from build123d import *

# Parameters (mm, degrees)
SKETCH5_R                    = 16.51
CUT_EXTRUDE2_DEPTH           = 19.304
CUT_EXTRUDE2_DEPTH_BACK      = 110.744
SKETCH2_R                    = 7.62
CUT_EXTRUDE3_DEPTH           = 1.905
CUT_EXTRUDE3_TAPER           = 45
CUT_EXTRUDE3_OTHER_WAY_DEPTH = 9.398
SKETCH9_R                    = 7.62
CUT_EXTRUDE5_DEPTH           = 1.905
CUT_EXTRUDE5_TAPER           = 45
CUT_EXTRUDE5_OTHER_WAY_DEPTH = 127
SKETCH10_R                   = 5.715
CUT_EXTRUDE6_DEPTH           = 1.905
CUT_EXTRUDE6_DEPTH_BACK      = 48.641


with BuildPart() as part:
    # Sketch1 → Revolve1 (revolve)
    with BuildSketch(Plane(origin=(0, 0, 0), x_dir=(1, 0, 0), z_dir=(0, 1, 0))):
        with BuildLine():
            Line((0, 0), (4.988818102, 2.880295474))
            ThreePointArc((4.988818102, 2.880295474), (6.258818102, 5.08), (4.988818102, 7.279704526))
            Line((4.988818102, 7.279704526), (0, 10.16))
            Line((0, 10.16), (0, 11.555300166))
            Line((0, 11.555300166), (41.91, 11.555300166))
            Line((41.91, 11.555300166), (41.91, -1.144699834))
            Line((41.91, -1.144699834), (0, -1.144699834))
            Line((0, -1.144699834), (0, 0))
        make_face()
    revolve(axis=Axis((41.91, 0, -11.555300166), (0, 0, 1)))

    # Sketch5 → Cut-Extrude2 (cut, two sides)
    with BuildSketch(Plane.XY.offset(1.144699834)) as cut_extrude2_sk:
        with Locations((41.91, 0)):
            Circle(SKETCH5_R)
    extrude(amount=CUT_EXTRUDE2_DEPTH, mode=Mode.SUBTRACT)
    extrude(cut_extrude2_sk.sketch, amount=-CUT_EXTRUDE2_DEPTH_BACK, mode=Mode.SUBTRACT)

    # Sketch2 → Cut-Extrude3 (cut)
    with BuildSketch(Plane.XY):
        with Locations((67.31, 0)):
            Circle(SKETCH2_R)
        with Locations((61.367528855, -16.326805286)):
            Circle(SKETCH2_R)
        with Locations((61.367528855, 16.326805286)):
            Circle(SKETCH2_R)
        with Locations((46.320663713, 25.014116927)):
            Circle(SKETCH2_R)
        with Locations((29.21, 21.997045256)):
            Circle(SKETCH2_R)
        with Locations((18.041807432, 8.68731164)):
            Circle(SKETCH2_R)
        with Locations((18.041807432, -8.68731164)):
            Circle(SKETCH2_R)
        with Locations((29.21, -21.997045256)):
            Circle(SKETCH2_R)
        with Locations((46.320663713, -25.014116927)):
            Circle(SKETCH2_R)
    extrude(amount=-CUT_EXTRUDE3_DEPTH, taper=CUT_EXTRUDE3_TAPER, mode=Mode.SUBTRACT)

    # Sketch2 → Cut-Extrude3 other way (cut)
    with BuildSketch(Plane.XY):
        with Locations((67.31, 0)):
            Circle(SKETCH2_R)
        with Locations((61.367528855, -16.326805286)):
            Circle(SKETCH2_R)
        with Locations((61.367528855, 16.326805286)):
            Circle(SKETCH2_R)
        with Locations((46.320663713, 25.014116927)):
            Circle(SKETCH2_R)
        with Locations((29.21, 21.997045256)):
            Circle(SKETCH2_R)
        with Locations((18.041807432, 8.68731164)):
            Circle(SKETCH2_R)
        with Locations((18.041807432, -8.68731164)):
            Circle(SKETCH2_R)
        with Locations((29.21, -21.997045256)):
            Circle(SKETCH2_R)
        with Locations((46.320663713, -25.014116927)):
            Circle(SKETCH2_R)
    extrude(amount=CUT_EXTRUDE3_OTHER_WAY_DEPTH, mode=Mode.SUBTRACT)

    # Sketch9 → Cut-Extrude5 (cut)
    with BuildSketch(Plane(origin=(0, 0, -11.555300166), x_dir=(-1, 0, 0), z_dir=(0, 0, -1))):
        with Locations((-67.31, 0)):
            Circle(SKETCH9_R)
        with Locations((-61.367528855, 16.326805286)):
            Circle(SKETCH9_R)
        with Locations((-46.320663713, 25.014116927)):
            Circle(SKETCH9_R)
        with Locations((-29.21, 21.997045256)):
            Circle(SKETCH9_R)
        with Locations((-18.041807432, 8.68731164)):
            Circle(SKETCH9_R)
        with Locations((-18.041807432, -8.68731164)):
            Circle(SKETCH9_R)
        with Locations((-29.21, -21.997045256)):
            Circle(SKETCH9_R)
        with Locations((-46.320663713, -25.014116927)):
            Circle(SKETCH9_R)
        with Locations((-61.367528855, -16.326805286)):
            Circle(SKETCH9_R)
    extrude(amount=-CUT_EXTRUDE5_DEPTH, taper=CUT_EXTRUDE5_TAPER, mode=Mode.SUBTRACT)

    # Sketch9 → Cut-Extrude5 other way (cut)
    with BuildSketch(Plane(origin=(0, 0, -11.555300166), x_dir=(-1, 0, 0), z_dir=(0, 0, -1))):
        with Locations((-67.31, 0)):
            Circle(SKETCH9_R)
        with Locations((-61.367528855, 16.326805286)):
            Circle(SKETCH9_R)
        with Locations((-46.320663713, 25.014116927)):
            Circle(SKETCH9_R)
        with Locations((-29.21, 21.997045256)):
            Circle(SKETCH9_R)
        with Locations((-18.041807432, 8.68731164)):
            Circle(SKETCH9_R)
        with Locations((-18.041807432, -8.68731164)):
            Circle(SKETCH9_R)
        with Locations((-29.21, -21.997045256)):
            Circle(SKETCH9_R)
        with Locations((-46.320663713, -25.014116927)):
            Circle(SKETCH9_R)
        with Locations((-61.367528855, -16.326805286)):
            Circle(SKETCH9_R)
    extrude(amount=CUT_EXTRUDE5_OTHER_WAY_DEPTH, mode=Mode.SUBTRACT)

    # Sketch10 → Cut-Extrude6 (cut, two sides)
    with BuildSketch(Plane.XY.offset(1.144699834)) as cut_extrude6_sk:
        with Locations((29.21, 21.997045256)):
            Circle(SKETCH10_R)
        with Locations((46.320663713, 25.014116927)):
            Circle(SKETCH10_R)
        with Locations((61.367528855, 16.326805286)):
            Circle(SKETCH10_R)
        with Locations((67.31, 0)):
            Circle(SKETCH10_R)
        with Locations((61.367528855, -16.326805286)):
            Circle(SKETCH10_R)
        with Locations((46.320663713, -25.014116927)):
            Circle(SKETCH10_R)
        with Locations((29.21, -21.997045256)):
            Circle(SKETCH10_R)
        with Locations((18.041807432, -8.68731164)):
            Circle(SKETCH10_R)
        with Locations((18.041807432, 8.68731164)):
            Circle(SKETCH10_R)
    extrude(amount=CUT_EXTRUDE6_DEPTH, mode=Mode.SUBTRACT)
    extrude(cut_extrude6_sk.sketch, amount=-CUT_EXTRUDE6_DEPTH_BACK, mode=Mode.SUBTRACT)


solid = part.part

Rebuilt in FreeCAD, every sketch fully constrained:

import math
import FreeCAD as App
import Part
import Sketcher

V = App.Vector
Q = App.Units.Quantity

doc = App.newDocument("Part")
body = doc.addObject("PartDesign::Body", "Body")

# Sketch on XZ plane
sketch1 = body.newObject("Sketcher::SketchObject", "Sketch")
sketch1.AttachmentSupport = (doc.getObject("XZ_Plane"), [""])
sketch1.MapMode = "FlatFace"
sketch1.addGeometry(Part.LineSegment(V(5, -2.9, 0), V(0, 0, 0)), False)
sketch1.addGeometry(Part.LineSegment(V(0, 0, 0), V(0, 1.1, 0)), False)
sketch1.addGeometry(Part.LineSegment(V(0, 1.1, 0), V(41.9, 1.1, 0)), False)
sketch1.addGeometry(Part.LineSegment(V(41.9, 1.1, 0), V(41.9, -11.6, 0)), False)
sketch1.addGeometry(Part.LineSegment(V(41.9, -11.6, 0), V(0, -11.6, 0)), False)
sketch1.addGeometry(Part.LineSegment(V(0, -11.6, 0), V(0, -10.2, 0)), False)
sketch1.addGeometry(Part.LineSegment(V(0, -10.2, 0), V(5, -7.3, 0)), False)
sketch1.addGeometry(Part.ArcOfCircle(Part.Circle(V(3.7, -5.1, 0), V(0, 0, 1), 2.5), math.radians(-60), math.radians(60)), False)
sketch1.addGeometry(Part.LineSegment(V(41.9, -11.6, 0), V(41.9, 1.1, 0)), True)  # axis
sketch1.addConstraint(Sketcher.Constraint("Coincident", 0, 2, 1, 1))
sketch1.addConstraint(Sketcher.Constraint("Coincident", 1, 2, 2, 1))
sketch1.addConstraint(Sketcher.Constraint("Coincident", 2, 2, 3, 1))
sketch1.addConstraint(Sketcher.Constraint("Coincident", 3, 2, 4, 1))
sketch1.addConstraint(Sketcher.Constraint("Coincident", 4, 2, 5, 1))
sketch1.addConstraint(Sketcher.Constraint("Coincident", 5, 2, 6, 1))
sketch1.addConstraint(Sketcher.Constraint("Tangent", 6, 2, 7, 1))
sketch1.addConstraint(Sketcher.Constraint("Tangent", 7, 2, 0, 1))
sketch1.addConstraint(Sketcher.Constraint("Vertical", 1))
sketch1.addConstraint(Sketcher.Constraint("Horizontal", 2))
sketch1.addConstraint(Sketcher.Constraint("Vertical", 3))
sketch1.addConstraint(Sketcher.Constraint("Horizontal", 4))
sketch1.addConstraint(Sketcher.Constraint("Vertical", 5))
sketch1.addConstraint(Sketcher.Constraint("Vertical", 8))
sketch1.addConstraint(Sketcher.Constraint("Coincident", 0, 2, -1, 1))
sketch1.addConstraint(Sketcher.Constraint("Coincident", 8, 1, 3, 2))
sketch1.addConstraint(Sketcher.Constraint("PointOnObject", 4, 2, -2))
sketch1.addConstraint(Sketcher.Constraint("Horizontal", 1, 2, 8, 2))
sketch1.addConstraint(Sketcher.Constraint("Vertical", 6, 2, 7, 2))
sketch1.addConstraint(Sketcher.Constraint("Radius", 7, Q("0.1 in")))
sketch1.addConstraint(Sketcher.Constraint("DistanceY", 3, 2, 3, 1, Q("0.5 in")))
sketch1.addConstraint(Sketcher.Constraint("Angle", 0, Q("150 deg")))
sketch1.addConstraint(Sketcher.Constraint("DistanceX", 2, 1, 2, 2, Q("1.65 in")))
sketch1.addConstraint(Sketcher.Constraint("DistanceY", 7, 3, -1, 1, Q("0.2 in")))
sketch1.addConstraint(Sketcher.Constraint("DistanceY", 1, 1, 1, 2, Q("1.1447 mm")))
revolution = body.newObject("PartDesign::Revolution", "Revolution")
revolution.Profile = sketch1
revolution.ReferenceAxis = (sketch1, ["Axis0"])
revolution.Angle = 360

# Sketch on XY plane
sketch2 = body.newObject("Sketcher::SketchObject", "Sketch001")
sketch2.AttachmentSupport = (doc.getObject("XY_Plane"), [""])
sketch2.MapMode = "FlatFace"
sketch2.AttachmentOffset = App.Placement(V(0, 0, 1.1447), App.Rotation())
sketch2.addGeometry(Part.Circle(V(42, 0, 0), V(0, 0, 1), 17), False)
sketch2.addConstraint(Sketcher.Constraint("PointOnObject", 0, 3, -1))
sketch2.addConstraint(Sketcher.Constraint("Diameter", 0, Q("1.3 in")))
sketch2.addConstraint(Sketcher.Constraint("DistanceX", -1, 1, 0, 3, Q("1.65 in")))
pocket1 = body.newObject("PartDesign::Pocket", "Pocket")
pocket1.Profile = sketch2
pocket1.Type = "ThroughAll"
pocket1.Midplane = True

# Sketch on XY plane
sketch3 = body.newObject("Sketcher::SketchObject", "Sketch002")
sketch3.AttachmentSupport = (doc.getObject("XY_Plane"), [""])
sketch3.MapMode = "FlatFace"
sketch3.addGeometry(Part.Circle(V(67, 0, 0), V(0, 0, 1), 8), False)
sketch3.addGeometry(Part.Circle(V(61, -16, 0), V(0, 0, 1), 8), False)
sketch3.addGeometry(Part.Circle(V(61, 16, 0), V(0, 0, 1), 8), False)
sketch3.addGeometry(Part.Circle(V(46, 25, 0), V(0, 0, 1), 8), False)
sketch3.addGeometry(Part.Circle(V(29, 22, 0), V(0, 0, 1), 8), False)
sketch3.addGeometry(Part.Circle(V(18, 9, 0), V(0, 0, 1), 8), False)
sketch3.addGeometry(Part.Circle(V(18, -9, 0), V(0, 0, 1), 8), False)
sketch3.addGeometry(Part.Circle(V(29, -22, 0), V(0, 0, 1), 8), False)
sketch3.addGeometry(Part.Circle(V(46, -25, 0), V(0, 0, 1), 8), False)
sketch3.addConstraint(Sketcher.Constraint("Equal", 0, 1))
sketch3.addConstraint(Sketcher.Constraint("Equal", 1, 2))
sketch3.addConstraint(Sketcher.Constraint("Equal", 2, 3))
sketch3.addConstraint(Sketcher.Constraint("Equal", 3, 4))
sketch3.addConstraint(Sketcher.Constraint("Equal", 4, 5))
sketch3.addConstraint(Sketcher.Constraint("Equal", 5, 6))
sketch3.addConstraint(Sketcher.Constraint("Equal", 6, 7))
sketch3.addConstraint(Sketcher.Constraint("Equal", 7, 8))
sketch3.addConstraint(Sketcher.Constraint("Symmetric", 1, 3, 2, 3, -1))
sketch3.addConstraint(Sketcher.Constraint("Symmetric", 5, 3, 6, 3, -1))
sketch3.addConstraint(Sketcher.Constraint("Symmetric", 4, 3, 7, 3, -1))
sketch3.addConstraint(Sketcher.Constraint("Symmetric", 3, 3, 8, 3, -1))
sketch3.addConstraint(Sketcher.Constraint("PointOnObject", 0, 3, -1))
sketch3.addConstraint(Sketcher.Constraint("Diameter", 0, Q("0.6 in")))
sketch3.addConstraint(Sketcher.Constraint("DistanceX", 4, 3, 0, 3, Q("1.5 in")))
sketch3.addConstraint(Sketcher.Constraint("DistanceX", -1, 1, 0, 3, Q("2.65 in")))
sketch3.addConstraint(Sketcher.Constraint("DistanceX", -1, 1, 1, 3, Q("61.367529 mm")))
sketch3.addConstraint(Sketcher.Constraint("DistanceY", -1, 1, 5, 3, Q("8.687312 mm")))
sketch3.addConstraint(Sketcher.Constraint("DistanceY", 1, 3, 2, 3, Q("32.653611 mm")))
sketch3.addConstraint(Sketcher.Constraint("DistanceY", 2, 3, 3, 3, Q("8.687312 mm")))
sketch3.addConstraint(Sketcher.Constraint("DistanceY", 4, 3, 3, 3, Q("3.017072 mm")))
sketch3.addConstraint(Sketcher.Constraint("DistanceX", 5, 3, 2, 3, Q("43.325721 mm")))
sketch3.addConstraint(Sketcher.Constraint("DistanceX", -1, 1, 3, 3, Q("46.320664 mm")))
pocket2 = body.newObject("PartDesign::Pocket", "Pocket001")
pocket2.Profile = sketch3
pocket2.Length = Q("0.075 in")
pocket2.TaperAngle = -45

# Sketch on XY plane
sketch4 = body.newObject("Sketcher::SketchObject", "Sketch003")
sketch4.AttachmentSupport = (doc.getObject("XY_Plane"), [""])
sketch4.MapMode = "FlatFace"
sketch4.addGeometry(Part.Circle(V(67, 0, 0), V(0, 0, 1), 8), False)
sketch4.addGeometry(Part.Circle(V(61, -16, 0), V(0, 0, 1), 8), False)
sketch4.addGeometry(Part.Circle(V(61, 16, 0), V(0, 0, 1), 8), False)
sketch4.addGeometry(Part.Circle(V(46, 25, 0), V(0, 0, 1), 8), False)
sketch4.addGeometry(Part.Circle(V(29, 22, 0), V(0, 0, 1), 8), False)
sketch4.addGeometry(Part.Circle(V(18, 9, 0), V(0, 0, 1), 8), False)
sketch4.addGeometry(Part.Circle(V(18, -9, 0), V(0, 0, 1), 8), False)
sketch4.addGeometry(Part.Circle(V(29, -22, 0), V(0, 0, 1), 8), False)
sketch4.addGeometry(Part.Circle(V(46, -25, 0), V(0, 0, 1), 8), False)
sketch4.addConstraint(Sketcher.Constraint("Equal", 0, 1))
sketch4.addConstraint(Sketcher.Constraint("Equal", 1, 2))
sketch4.addConstraint(Sketcher.Constraint("Equal", 2, 3))
sketch4.addConstraint(Sketcher.Constraint("Equal", 3, 4))
sketch4.addConstraint(Sketcher.Constraint("Equal", 4, 5))
sketch4.addConstraint(Sketcher.Constraint("Equal", 5, 6))
sketch4.addConstraint(Sketcher.Constraint("Equal", 6, 7))
sketch4.addConstraint(Sketcher.Constraint("Equal", 7, 8))
sketch4.addConstraint(Sketcher.Constraint("Symmetric", 1, 3, 2, 3, -1))
sketch4.addConstraint(Sketcher.Constraint("Symmetric", 5, 3, 6, 3, -1))
sketch4.addConstraint(Sketcher.Constraint("Symmetric", 4, 3, 7, 3, -1))
sketch4.addConstraint(Sketcher.Constraint("Symmetric", 3, 3, 8, 3, -1))
sketch4.addConstraint(Sketcher.Constraint("PointOnObject", 0, 3, -1))
sketch4.addConstraint(Sketcher.Constraint("Diameter", 0, Q("0.6 in")))
sketch4.addConstraint(Sketcher.Constraint("DistanceX", 4, 3, 0, 3, Q("1.5 in")))
sketch4.addConstraint(Sketcher.Constraint("DistanceX", -1, 1, 0, 3, Q("2.65 in")))
sketch4.addConstraint(Sketcher.Constraint("DistanceX", -1, 1, 1, 3, Q("61.367529 mm")))
sketch4.addConstraint(Sketcher.Constraint("DistanceY", -1, 1, 5, 3, Q("8.687312 mm")))
sketch4.addConstraint(Sketcher.Constraint("DistanceY", 1, 3, 2, 3, Q("32.653611 mm")))
sketch4.addConstraint(Sketcher.Constraint("DistanceY", 2, 3, 3, 3, Q("8.687312 mm")))
sketch4.addConstraint(Sketcher.Constraint("DistanceY", 4, 3, 3, 3, Q("3.017072 mm")))
sketch4.addConstraint(Sketcher.Constraint("DistanceX", 5, 3, 2, 3, Q("43.325721 mm")))
sketch4.addConstraint(Sketcher.Constraint("DistanceX", -1, 1, 3, 3, Q("46.320664 mm")))
pocket3 = body.newObject("PartDesign::Pocket", "Pocket002")
pocket3.Profile = sketch4
pocket3.Length = Q("0.37 in")
pocket3.Reversed = True

# Sketch on XY plane
sketch5 = body.newObject("Sketcher::SketchObject", "Sketch004")
sketch5.AttachmentSupport = (doc.getObject("XY_Plane"), [""])
sketch5.MapMode = "FlatFace"
sketch5.AttachmentOffset = App.Placement(V(0, 0, -11.5553), App.Rotation())
sketch5.addGeometry(Part.Circle(V(67, 0, 0), V(0, 0, 1), 8), False)
sketch5.addGeometry(Part.Circle(V(61, 16, 0), V(0, 0, 1), 8), False)
sketch5.addGeometry(Part.Circle(V(46, 25, 0), V(0, 0, 1), 8), False)
sketch5.addGeometry(Part.Circle(V(29, 22, 0), V(0, 0, 1), 8), False)
sketch5.addGeometry(Part.Circle(V(18, 9, 0), V(0, 0, 1), 8), False)
sketch5.addGeometry(Part.Circle(V(18, -9, 0), V(0, 0, 1), 8), False)
sketch5.addGeometry(Part.Circle(V(29, -22, 0), V(0, 0, 1), 8), False)
sketch5.addGeometry(Part.Circle(V(46, -25, 0), V(0, 0, 1), 8), False)
sketch5.addGeometry(Part.Circle(V(61, -16, 0), V(0, 0, 1), 8), False)
sketch5.addConstraint(Sketcher.Constraint("Equal", 0, 1))
sketch5.addConstraint(Sketcher.Constraint("Equal", 1, 2))
sketch5.addConstraint(Sketcher.Constraint("Equal", 2, 3))
sketch5.addConstraint(Sketcher.Constraint("Equal", 3, 4))
sketch5.addConstraint(Sketcher.Constraint("Equal", 4, 5))
sketch5.addConstraint(Sketcher.Constraint("Equal", 5, 6))
sketch5.addConstraint(Sketcher.Constraint("Equal", 6, 7))
sketch5.addConstraint(Sketcher.Constraint("Equal", 7, 8))
sketch5.addConstraint(Sketcher.Constraint("Symmetric", 4, 3, 5, 3, -1))
sketch5.addConstraint(Sketcher.Constraint("Symmetric", 3, 3, 6, 3, -1))
sketch5.addConstraint(Sketcher.Constraint("Symmetric", 2, 3, 7, 3, -1))
sketch5.addConstraint(Sketcher.Constraint("Symmetric", 1, 3, 8, 3, -1))
sketch5.addConstraint(Sketcher.Constraint("PointOnObject", 0, 3, -1))
sketch5.addConstraint(Sketcher.Constraint("Diameter", 0, Q("0.6 in")))
sketch5.addConstraint(Sketcher.Constraint("DistanceX", 3, 3, 0, 3, Q("1.5 in")))
sketch5.addConstraint(Sketcher.Constraint("DistanceX", -1, 1, 0, 3, Q("2.65 in")))
sketch5.addConstraint(Sketcher.Constraint("DistanceX", -1, 1, 1, 3, Q("61.367529 mm")))
sketch5.addConstraint(Sketcher.Constraint("DistanceY", -1, 1, 4, 3, Q("8.687312 mm")))
sketch5.addConstraint(Sketcher.Constraint("DistanceY", 1, 3, 2, 3, Q("8.687312 mm")))
sketch5.addConstraint(Sketcher.Constraint("DistanceY", 3, 3, 2, 3, Q("3.017072 mm")))
sketch5.addConstraint(Sketcher.Constraint("DistanceX", 4, 3, 1, 3, Q("43.325721 mm")))
sketch5.addConstraint(Sketcher.Constraint("DistanceY", 5, 3, 2, 3, Q("33.701429 mm")))
sketch5.addConstraint(Sketcher.Constraint("DistanceX", -1, 1, 2, 3, Q("46.320664 mm")))
pocket4 = body.newObject("PartDesign::Pocket", "Pocket003")
pocket4.Profile = sketch5
pocket4.Length = Q("0.075 in")
pocket4.Reversed = True
pocket4.TaperAngle = -45

# Sketch on XY plane
sketch6 = body.newObject("Sketcher::SketchObject", "Sketch005")
sketch6.AttachmentSupport = (doc.getObject("XY_Plane"), [""])
sketch6.MapMode = "FlatFace"
sketch6.AttachmentOffset = App.Placement(V(0, 0, -11.5553), App.Rotation())
sketch6.addGeometry(Part.Circle(V(67, 0, 0), V(0, 0, 1), 8), False)
sketch6.addGeometry(Part.Circle(V(61, 16, 0), V(0, 0, 1), 8), False)
sketch6.addGeometry(Part.Circle(V(46, 25, 0), V(0, 0, 1), 8), False)
sketch6.addGeometry(Part.Circle(V(29, 22, 0), V(0, 0, 1), 8), False)
sketch6.addGeometry(Part.Circle(V(18, 9, 0), V(0, 0, 1), 8), False)
sketch6.addGeometry(Part.Circle(V(18, -9, 0), V(0, 0, 1), 8), False)
sketch6.addGeometry(Part.Circle(V(29, -22, 0), V(0, 0, 1), 8), False)
sketch6.addGeometry(Part.Circle(V(46, -25, 0), V(0, 0, 1), 8), False)
sketch6.addGeometry(Part.Circle(V(61, -16, 0), V(0, 0, 1), 8), False)
sketch6.addConstraint(Sketcher.Constraint("Equal", 0, 1))
sketch6.addConstraint(Sketcher.Constraint("Equal", 1, 2))
sketch6.addConstraint(Sketcher.Constraint("Equal", 2, 3))
sketch6.addConstraint(Sketcher.Constraint("Equal", 3, 4))
sketch6.addConstraint(Sketcher.Constraint("Equal", 4, 5))
sketch6.addConstraint(Sketcher.Constraint("Equal", 5, 6))
sketch6.addConstraint(Sketcher.Constraint("Equal", 6, 7))
sketch6.addConstraint(Sketcher.Constraint("Equal", 7, 8))
sketch6.addConstraint(Sketcher.Constraint("Symmetric", 4, 3, 5, 3, -1))
sketch6.addConstraint(Sketcher.Constraint("Symmetric", 3, 3, 6, 3, -1))
sketch6.addConstraint(Sketcher.Constraint("Symmetric", 2, 3, 7, 3, -1))
sketch6.addConstraint(Sketcher.Constraint("Symmetric", 1, 3, 8, 3, -1))
sketch6.addConstraint(Sketcher.Constraint("PointOnObject", 0, 3, -1))
sketch6.addConstraint(Sketcher.Constraint("Diameter", 0, Q("0.6 in")))
sketch6.addConstraint(Sketcher.Constraint("DistanceX", 3, 3, 0, 3, Q("1.5 in")))
sketch6.addConstraint(Sketcher.Constraint("DistanceX", -1, 1, 0, 3, Q("2.65 in")))
sketch6.addConstraint(Sketcher.Constraint("DistanceX", -1, 1, 1, 3, Q("61.367529 mm")))
sketch6.addConstraint(Sketcher.Constraint("DistanceY", -1, 1, 4, 3, Q("8.687312 mm")))
sketch6.addConstraint(Sketcher.Constraint("DistanceY", 1, 3, 2, 3, Q("8.687312 mm")))
sketch6.addConstraint(Sketcher.Constraint("DistanceY", 3, 3, 2, 3, Q("3.017072 mm")))
sketch6.addConstraint(Sketcher.Constraint("DistanceX", 4, 3, 1, 3, Q("43.325721 mm")))
sketch6.addConstraint(Sketcher.Constraint("DistanceY", 5, 3, 2, 3, Q("33.701429 mm")))
sketch6.addConstraint(Sketcher.Constraint("DistanceX", -1, 1, 2, 3, Q("46.320664 mm")))
pocket5 = body.newObject("PartDesign::Pocket", "Pocket004")
pocket5.Profile = sketch6
pocket5.Length = Q("5 in")

# Sketch on XY plane
sketch7 = body.newObject("Sketcher::SketchObject", "Sketch006")
sketch7.AttachmentSupport = (doc.getObject("XY_Plane"), [""])
sketch7.MapMode = "FlatFace"
sketch7.AttachmentOffset = App.Placement(V(0, 0, 1.1447), App.Rotation())
sketch7.addGeometry(Part.Circle(V(29, 22, 0), V(0, 0, 1), 6), False)
sketch7.addGeometry(Part.Circle(V(46, 25, 0), V(0, 0, 1), 6), False)
sketch7.addGeometry(Part.Circle(V(61, 16, 0), V(0, 0, 1), 6), False)
sketch7.addGeometry(Part.Circle(V(67, 0, 0), V(0, 0, 1), 6), False)
sketch7.addGeometry(Part.Circle(V(61, -16, 0), V(0, 0, 1), 6), False)
sketch7.addGeometry(Part.Circle(V(46, -25, 0), V(0, 0, 1), 6), False)
sketch7.addGeometry(Part.Circle(V(29, -22, 0), V(0, 0, 1), 6), False)
sketch7.addGeometry(Part.Circle(V(18, -9, 0), V(0, 0, 1), 6), False)
sketch7.addGeometry(Part.Circle(V(18, 9, 0), V(0, 0, 1), 6), False)
sketch7.addConstraint(Sketcher.Constraint("Equal", 0, 1))
sketch7.addConstraint(Sketcher.Constraint("Equal", 1, 2))
sketch7.addConstraint(Sketcher.Constraint("Equal", 2, 3))
sketch7.addConstraint(Sketcher.Constraint("Equal", 3, 4))
sketch7.addConstraint(Sketcher.Constraint("Equal", 4, 5))
sketch7.addConstraint(Sketcher.Constraint("Equal", 5, 6))
sketch7.addConstraint(Sketcher.Constraint("Equal", 6, 7))
sketch7.addConstraint(Sketcher.Constraint("Equal", 7, 8))
sketch7.addConstraint(Sketcher.Constraint("Symmetric", 2, 3, 4, 3, -1))
sketch7.addConstraint(Sketcher.Constraint("Symmetric", 1, 3, 5, 3, -1))
sketch7.addConstraint(Sketcher.Constraint("Symmetric", 0, 3, 6, 3, -1))
sketch7.addConstraint(Sketcher.Constraint("Symmetric", 7, 3, 8, 3, -1))
sketch7.addConstraint(Sketcher.Constraint("PointOnObject", 3, 3, -1))
sketch7.addConstraint(Sketcher.Constraint("Diameter", 0, Q("0.45 in")))
sketch7.addConstraint(Sketcher.Constraint("DistanceX", 0, 3, 3, 3, Q("1.5 in")))
sketch7.addConstraint(Sketcher.Constraint("DistanceX", -1, 1, 0, 3, Q("1.15 in")))
sketch7.addConstraint(Sketcher.Constraint("DistanceX", -1, 1, 2, 3, Q("61.367529 mm")))
sketch7.addConstraint(Sketcher.Constraint("DistanceY", 7, 3, -1, 1, Q("8.687312 mm")))
sketch7.addConstraint(Sketcher.Constraint("DistanceY", 0, 3, 1, 3, Q("3.017072 mm")))
sketch7.addConstraint(Sketcher.Constraint("DistanceY", 2, 3, 1, 3, Q("8.687312 mm")))
sketch7.addConstraint(Sketcher.Constraint("DistanceY", 4, 3, 2, 3, Q("32.653611 mm")))
sketch7.addConstraint(Sketcher.Constraint("DistanceX", 7, 3, 4, 3, Q("43.325721 mm")))
sketch7.addConstraint(Sketcher.Constraint("DistanceX", -1, 1, 1, 3, Q("46.320664 mm")))
pocket6 = body.newObject("PartDesign::Pocket", "Pocket005")
pocket6.Profile = sketch7
pocket6.Type = "ThroughAll"
pocket6.Midplane = True

doc.recompute()
